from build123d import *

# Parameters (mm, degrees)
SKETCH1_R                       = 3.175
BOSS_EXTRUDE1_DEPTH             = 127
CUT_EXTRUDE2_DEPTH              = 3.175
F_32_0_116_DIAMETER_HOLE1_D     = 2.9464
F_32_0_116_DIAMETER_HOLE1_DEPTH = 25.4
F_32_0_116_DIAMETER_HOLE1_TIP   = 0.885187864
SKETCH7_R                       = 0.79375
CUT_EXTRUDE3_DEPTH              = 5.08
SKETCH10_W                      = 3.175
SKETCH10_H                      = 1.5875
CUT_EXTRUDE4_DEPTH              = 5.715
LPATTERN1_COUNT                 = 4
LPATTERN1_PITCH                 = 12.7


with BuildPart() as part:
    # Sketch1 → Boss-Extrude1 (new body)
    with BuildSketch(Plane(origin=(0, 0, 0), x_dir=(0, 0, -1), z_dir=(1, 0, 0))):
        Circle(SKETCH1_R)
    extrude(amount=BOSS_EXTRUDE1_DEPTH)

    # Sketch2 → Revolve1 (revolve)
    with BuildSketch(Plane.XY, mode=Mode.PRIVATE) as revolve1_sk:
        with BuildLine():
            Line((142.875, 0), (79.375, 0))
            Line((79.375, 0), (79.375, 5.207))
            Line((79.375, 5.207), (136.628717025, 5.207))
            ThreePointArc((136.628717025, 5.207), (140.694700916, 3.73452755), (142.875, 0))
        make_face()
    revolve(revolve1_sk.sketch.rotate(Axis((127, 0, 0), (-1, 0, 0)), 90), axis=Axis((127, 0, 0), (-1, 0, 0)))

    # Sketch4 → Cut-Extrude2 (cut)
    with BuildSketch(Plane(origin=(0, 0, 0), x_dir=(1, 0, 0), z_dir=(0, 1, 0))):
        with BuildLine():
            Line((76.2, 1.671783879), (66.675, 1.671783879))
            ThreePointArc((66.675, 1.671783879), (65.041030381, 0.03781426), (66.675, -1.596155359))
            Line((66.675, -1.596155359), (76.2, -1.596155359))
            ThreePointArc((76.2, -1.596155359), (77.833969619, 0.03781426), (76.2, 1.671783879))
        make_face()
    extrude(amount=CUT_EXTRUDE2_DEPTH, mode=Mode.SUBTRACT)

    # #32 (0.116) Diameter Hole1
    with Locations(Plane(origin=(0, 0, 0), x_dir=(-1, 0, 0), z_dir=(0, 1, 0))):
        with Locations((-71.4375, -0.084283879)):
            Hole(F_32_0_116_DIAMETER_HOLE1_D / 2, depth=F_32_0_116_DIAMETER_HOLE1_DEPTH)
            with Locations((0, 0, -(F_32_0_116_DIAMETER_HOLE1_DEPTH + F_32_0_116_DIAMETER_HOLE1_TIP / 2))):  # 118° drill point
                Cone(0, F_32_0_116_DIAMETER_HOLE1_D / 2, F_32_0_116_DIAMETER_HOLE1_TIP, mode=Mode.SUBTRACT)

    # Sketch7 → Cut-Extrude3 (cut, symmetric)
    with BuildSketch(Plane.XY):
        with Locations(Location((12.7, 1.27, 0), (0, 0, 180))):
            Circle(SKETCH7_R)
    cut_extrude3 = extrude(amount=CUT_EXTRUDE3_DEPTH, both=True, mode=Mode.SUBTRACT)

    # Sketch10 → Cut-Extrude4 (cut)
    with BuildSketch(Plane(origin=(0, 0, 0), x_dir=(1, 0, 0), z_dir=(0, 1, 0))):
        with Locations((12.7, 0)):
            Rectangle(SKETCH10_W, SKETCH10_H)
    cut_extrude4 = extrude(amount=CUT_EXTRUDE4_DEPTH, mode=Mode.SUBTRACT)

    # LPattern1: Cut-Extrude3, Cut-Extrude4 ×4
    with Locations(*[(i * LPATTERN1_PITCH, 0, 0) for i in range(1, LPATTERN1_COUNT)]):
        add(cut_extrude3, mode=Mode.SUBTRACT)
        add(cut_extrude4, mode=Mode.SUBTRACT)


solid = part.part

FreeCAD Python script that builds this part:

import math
import FreeCAD as App
import Part
import Sketcher

V = App.Vector
Q = App.Units.Quantity

doc = App.newDocument("Part")
body = doc.addObject("PartDesign::Body", "Body")

# Sketch on YZ plane
sketch1 = body.newObject("Sketcher::SketchObject", "Sketch")
sketch1.AttachmentSupport = (doc.getObject("YZ_Plane"), [""])
sketch1.MapMode = "FlatFace"
sketch1.addGeometry(Part.Circle(V(0, 0, 0), V(0, 0, 1), 3.2), False)
sketch1.addConstraint(Sketcher.Constraint("Coincident", 0, 3, -1, 1))
sketch1.addConstraint(Sketcher.Constraint("Diameter", 0, Q("0.25 in")))
pad1 = body.newObject("PartDesign::Pad", "Pad")
pad1.Profile = sketch1
pad1.Length = Q("5 in")

# Sketch on XY plane
sketch2 = body.newObject("Sketcher::SketchObject", "Sketch001")
sketch2.AttachmentSupport = (doc.getObject("XY_Plane"), [""])
sketch2.MapMode = "FlatFace"
sketch2.addGeometry(Part.LineSegment(V(79, 0, 0), V(143, 0, 0)), False)
sketch2.addGeometry(Part.ArcOfCircle(Part.Circle(V(137, -1, 0), V(0, 0, 1), 6), math.radians(10), math.radians(90)), False)
sketch2.addGeometry(Part.LineSegment(V(137, 5, 0), V(79, 5, 0)), False)
sketch2.addGeometry(Part.LineSegment(V(79, 5, 0), V(79, 0, 0)), False)
sketch2.addConstraint(Sketcher.Constraint("Coincident", 0, 2, 1, 1))
sketch2.addConstraint(Sketcher.Constraint("Tangent", 1, 2, 2, 1))
sketch2.addConstraint(Sketcher.Constraint("Coincident", 2, 2, 3, 1))
sketch2.addConstraint(Sketcher.Constraint("Coincident", 3, 2, 0, 1))
sketch2.addConstraint(Sketcher.Constraint("Horizontal", 0))
sketch2.addConstraint(Sketcher.Constraint("Horizontal", 2))
sketch2.addConstraint(Sketcher.Constraint("Vertical", 3))
sketch2.addConstraint(Sketcher.Constraint("PointOnObject", 0, 2, -1))
sketch2.addConstraint(Sketcher.Constraint("Radius", 1, Q("0.25 in")))
sketch2.addConstraint(Sketcher.Constraint("DistanceX", 0, 1, 0, 2, Q("2.5 in")))
sketch2.addConstraint(Sketcher.Constraint("DistanceY", 3, 2, 3, 1, Q("0.205 in")))
sketch2.addConstraint(Sketcher.Constraint("DistanceX", -1, 1, 0, 2, Q("5.625 in")))
revolution = body.newObject("PartDesign::Revolution", "Revolution")
revolution.Profile = sketch2
revolution.ReferenceAxis = (sketch2, ["H_Axis"])
revolution.Angle = 360

# Sketch on XZ plane
sketch3 = body.newObject("Sketcher::SketchObject", "Sketch002")
sketch3.AttachmentSupport = (doc.getObject("XZ_Plane"), [""])
sketch3.MapMode = "FlatFace"
sketch3.addGeometry(Part.LineSegment(V(76.2, -1.7, 0), V(66.7, -1.7, 0)), False)
sketch3.addGeometry(Part.ArcOfCircle(Part.Circle(V(66.7, 0, 0), V(0, 0, 1), 1.6), math.radians(90), math.radians(270)), False)
sketch3.addGeometry(Part.LineSegment(V(66.7, 1.6, 0), V(76.2, 1.6, 0)), False)
sketch3.addGeometry(Part.ArcOfCircle(Part.Circle(V(76.2, 0, 0), V(0, 0, 1), 1.6), math.radians(-90), math.radians(90)), False)
sketch3.addConstraint(Sketcher.Constraint("Tangent", 0, 2, 1, 2))
sketch3.addConstraint(Sketcher.Constraint("Tangent", 1, 1, 2, 1))
sketch3.addConstraint(Sketcher.Constraint("Tangent", 2, 2, 3, 2))
sketch3.addConstraint(Sketcher.Constraint("Tangent", 3, 1, 0, 1))
sketch3.addConstraint(Sketcher.Constraint("Horizontal", 0))
sketch3.addConstraint(Sketcher.Constraint("Horizontal", 2))
sketch3.addConstraint(Sketcher.Constraint("DistanceX", -1, 1, 3, 3, Q("3 in")))
sketch3.addConstraint(Sketcher.Constraint("DistanceX", 0, 2, 0, 1, Q("0.375 in")))
sketch3.addConstraint(Sketcher.Constraint("Radius", 1, Q("1.63397 mm")))
sketch3.addConstraint(Sketcher.Constraint("DistanceY", 1, 3, -1, 1, Q("0.037814 mm")))
pocket1 = body.newObject("PartDesign::Pocket", "Pocket")
pocket1.Profile = sketch3
pocket1.Length = Q("0.125 in")

# Sketch on XZ plane
sketch4 = body.newObject("Sketcher::SketchObject", "Sketch003")
sketch4.AttachmentSupport = (doc.getObject("XZ_Plane"), [""])
sketch4.MapMode = "FlatFace"
sketch4.addGeometry(Part.Circle(V(71.4, -0.1, 0), V(0, 0, 1), 1.5), False)
sketch4.addConstraint(Sketcher.Constraint("Diameter", 0, Q("0.116 in")))
sketch4.addConstraint(Sketcher.Constraint("DistanceX", -1, 1, 0, 3, Q("2.8125 in")))
sketch4.addConstraint(Sketcher.Constraint("DistanceY", 0, 3, -1, 1, Q("0.084284 mm")))
doc.recompute()
hole = body.newObject("PartDesign::Hole", "Hole")
hole.Profile = sketch4
hole.ThreadType = "None"
hole.Diameter = Q("0.116 in")
hole.DepthType = "Dimension"
hole.Depth = Q("1 in")
hole.DrillPoint = "Angled"
hole.DrillPointAngle = 118
hole.Reversed = True

# Sketch on XY plane
sketch5 = body.newObject("Sketcher::SketchObject", "Sketch004")
sketch5.AttachmentSupport = (doc.getObject("XY_Plane"), [""])
sketch5.MapMode = "FlatFace"
sketch5.addGeometry(Part.Circle(V(12.7, 1.3, 0), V(0, 0, 1), 0.8), False)
sketch5.addConstraint(Sketcher.Constraint("Diameter", 0, Q("0.0625 in")))
sketch5.addConstraint(Sketcher.Constraint("DistanceX", -1, 1, 0, 3, Q("0.5 in")))
sketch5.addConstraint(Sketcher.Constraint("DistanceY", -1, 1, 0, 3, Q("0.05 in")))
pocket2 = body.newObject("PartDesign::Pocket", "Pocket001")
pocket2.Profile = sketch5
pocket2.Length = Q("0.4 in")
pocket2.Midplane = True

# Sketch on XZ plane
sketch6 = body.newObject("Sketcher::SketchObject", "Sketch005")
sketch6.AttachmentSupport = (doc.getObject("XZ_Plane"), [""])
sketch6.MapMode = "FlatFace"
sketch6.addGeometry(Part.LineSegment(V(11.1, -0.8, 0), V(11.1, 0.8, 0)), False)
sketch6.addGeometry(Part.LineSegment(V(11.1, 0.8, 0), V(14.3, 0.8, 0)), False)
sketch6.addGeometry(Part.LineSegment(V(14.3, 0.8, 0), V(14.3, -0.8, 0)), False)
sketch6.addGeometry(Part.LineSegment(V(14.3, -0.8, 0), V(11.1, -0.8, 0)), False)
sketch6.addConstraint(Sketcher.Constraint("Coincident", 0, 2, 1, 1))
sketch6.addConstraint(Sketcher.Constraint("Coincident", 1, 2, 2, 1))
sketch6.addConstraint(Sketcher.Constraint("Coincident", 2, 2, 3, 1))
sketch6.addConstraint(Sketcher.Constraint("Coincident", 3, 2, 0, 1))
sketch6.addConstraint(Sketcher.Constraint("Vertical", 0))
sketch6.addConstraint(Sketcher.Constraint("Horizontal", 1))
sketch6.addConstraint(Sketcher.Constraint("Vertical", 2))
sketch6.addConstraint(Sketcher.Constraint("Horizontal", 3))
sketch6.addConstraint(Sketcher.Constraint("DistanceX", 1, 1, 1, 2, Q("0.125 in")))
sketch6.addConstraint(Sketcher.Constraint("DistanceY", 0, 1, 0, 2, Q("0.0625 in")))
sketch6.addConstraint(Sketcher.Constraint("DistanceX", -1, 1, 0, 2, Q("0.4375 in")))
sketch6.addConstraint(Sketcher.Constraint("DistanceY", -1, 1, 0, 2, Q("0.03125 in")))
pocket3 = body.newObject("PartDesign::Pocket", "Pocket002")
pocket3.Profile = sketch6
pocket3.Length = Q("0.225 in")
doc.recompute()

linearpattern = body.newObject("PartDesign::LinearPattern", "LinearPattern")
linearpattern.Originals = [pocket2, pocket3]
linearpattern.Direction = (doc.getObject("X_Axis"), [""])
linearpattern.Mode = "offset"
linearpattern.Offset = Q("0.5 in")
linearpattern.Occurrences = 4
body.Tip = linearpattern

doc.recompute()
